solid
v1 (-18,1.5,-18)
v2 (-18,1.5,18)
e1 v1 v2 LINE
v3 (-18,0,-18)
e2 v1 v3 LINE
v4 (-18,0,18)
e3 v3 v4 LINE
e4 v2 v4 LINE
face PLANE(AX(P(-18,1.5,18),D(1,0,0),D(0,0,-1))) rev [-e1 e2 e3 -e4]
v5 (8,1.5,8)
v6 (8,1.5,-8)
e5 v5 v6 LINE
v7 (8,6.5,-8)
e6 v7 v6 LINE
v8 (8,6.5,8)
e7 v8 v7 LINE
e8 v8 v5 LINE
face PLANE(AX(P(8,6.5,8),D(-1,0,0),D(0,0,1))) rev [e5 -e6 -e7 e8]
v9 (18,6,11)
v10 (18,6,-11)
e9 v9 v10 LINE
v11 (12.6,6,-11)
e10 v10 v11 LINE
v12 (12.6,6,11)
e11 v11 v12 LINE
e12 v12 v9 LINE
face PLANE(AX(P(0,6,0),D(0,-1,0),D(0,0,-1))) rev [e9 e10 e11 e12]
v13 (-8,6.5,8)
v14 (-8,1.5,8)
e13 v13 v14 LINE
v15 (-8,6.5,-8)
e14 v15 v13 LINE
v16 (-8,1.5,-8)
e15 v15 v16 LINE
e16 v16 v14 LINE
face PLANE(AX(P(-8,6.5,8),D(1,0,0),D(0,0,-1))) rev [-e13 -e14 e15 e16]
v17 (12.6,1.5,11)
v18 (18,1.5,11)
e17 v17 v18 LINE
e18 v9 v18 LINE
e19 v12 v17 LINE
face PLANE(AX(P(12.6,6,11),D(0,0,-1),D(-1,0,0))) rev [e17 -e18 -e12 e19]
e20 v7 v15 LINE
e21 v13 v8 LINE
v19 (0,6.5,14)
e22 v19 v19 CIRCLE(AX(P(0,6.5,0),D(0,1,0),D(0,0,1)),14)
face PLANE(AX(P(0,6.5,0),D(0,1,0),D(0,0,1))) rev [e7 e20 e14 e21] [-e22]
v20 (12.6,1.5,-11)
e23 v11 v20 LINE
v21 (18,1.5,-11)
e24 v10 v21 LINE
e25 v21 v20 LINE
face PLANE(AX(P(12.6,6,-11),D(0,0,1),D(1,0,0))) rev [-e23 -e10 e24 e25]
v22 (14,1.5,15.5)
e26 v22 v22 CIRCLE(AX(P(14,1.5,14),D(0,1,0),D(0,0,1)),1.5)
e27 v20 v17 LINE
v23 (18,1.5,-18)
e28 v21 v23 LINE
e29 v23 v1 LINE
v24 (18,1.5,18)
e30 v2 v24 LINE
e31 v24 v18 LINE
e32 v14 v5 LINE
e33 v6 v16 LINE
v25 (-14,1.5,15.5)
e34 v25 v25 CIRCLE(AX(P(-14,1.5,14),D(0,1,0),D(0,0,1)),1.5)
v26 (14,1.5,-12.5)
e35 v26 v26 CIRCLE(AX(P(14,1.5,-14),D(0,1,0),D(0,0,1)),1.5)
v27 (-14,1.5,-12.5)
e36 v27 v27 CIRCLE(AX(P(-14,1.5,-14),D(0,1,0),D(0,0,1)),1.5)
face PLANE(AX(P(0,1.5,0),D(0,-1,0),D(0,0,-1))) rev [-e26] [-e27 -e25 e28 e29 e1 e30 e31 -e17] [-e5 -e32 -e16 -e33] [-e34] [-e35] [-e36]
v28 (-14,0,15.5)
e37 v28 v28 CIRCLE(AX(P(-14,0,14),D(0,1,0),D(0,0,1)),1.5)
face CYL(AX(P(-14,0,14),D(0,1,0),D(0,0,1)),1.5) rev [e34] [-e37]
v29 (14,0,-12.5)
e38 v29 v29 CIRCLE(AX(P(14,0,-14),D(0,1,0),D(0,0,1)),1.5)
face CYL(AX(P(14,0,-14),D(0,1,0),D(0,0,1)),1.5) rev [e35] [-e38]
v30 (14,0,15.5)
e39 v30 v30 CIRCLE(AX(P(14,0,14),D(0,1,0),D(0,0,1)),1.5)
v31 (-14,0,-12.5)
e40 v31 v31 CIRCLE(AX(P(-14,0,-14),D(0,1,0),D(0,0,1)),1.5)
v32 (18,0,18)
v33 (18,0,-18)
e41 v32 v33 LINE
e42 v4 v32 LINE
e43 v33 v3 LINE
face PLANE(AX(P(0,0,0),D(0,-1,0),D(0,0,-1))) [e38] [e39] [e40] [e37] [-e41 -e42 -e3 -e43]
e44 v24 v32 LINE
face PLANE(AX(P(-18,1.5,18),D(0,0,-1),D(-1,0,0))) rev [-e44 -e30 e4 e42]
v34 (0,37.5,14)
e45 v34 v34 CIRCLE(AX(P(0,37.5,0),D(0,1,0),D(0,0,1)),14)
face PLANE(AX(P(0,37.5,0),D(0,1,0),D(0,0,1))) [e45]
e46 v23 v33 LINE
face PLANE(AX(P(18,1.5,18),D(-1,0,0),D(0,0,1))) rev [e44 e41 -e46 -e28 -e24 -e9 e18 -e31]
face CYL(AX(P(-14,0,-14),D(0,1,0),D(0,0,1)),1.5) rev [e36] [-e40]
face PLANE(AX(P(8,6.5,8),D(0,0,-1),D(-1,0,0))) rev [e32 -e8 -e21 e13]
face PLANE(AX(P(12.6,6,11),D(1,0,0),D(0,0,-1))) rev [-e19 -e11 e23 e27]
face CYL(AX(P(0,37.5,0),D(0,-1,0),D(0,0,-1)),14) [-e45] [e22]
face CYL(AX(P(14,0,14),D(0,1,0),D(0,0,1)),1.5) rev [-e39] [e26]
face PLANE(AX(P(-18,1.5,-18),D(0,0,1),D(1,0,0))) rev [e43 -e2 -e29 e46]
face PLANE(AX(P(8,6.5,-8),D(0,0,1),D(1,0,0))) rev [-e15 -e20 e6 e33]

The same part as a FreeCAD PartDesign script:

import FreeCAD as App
import Part
import Sketcher
Q = App.Units.Quantity

doc = App.newDocument("Part")
body = doc.addObject("PartDesign::Body", "Body")

sketch1 = body.newObject("Sketcher::SketchObject", "Sketch")
sketch1.AttachmentSupport = (doc.getObject("XZ_Plane"), [""])
sketch1.MapMode = "FlatFace"
sketch1.addGeometry([
    Part.LineSegment(App.Vector(-18, -18, 0), App.Vector(-18, 18, 0)),
    Part.LineSegment(App.Vector(-18, 18, 0), App.Vector(18, 18, 0)),
    Part.LineSegment(App.Vector(18, 18, 0), App.Vector(18, -18, 0)),
    Part.LineSegment(App.Vector(18, -18, 0), App.Vector(-18, -18, 0)),
], False)
sketch1.addConstraint([
    Sketcher.Constraint("Coincident", 0, 2, 1, 1),
    Sketcher.Constraint("Coincident", 1, 2, 2, 1),
    Sketcher.Constraint("Coincident", 2, 2, 3, 1),
    Sketcher.Constraint("Coincident", 3, 2, 0, 1),
    Sketcher.Constraint("Vertical", 0),
    Sketcher.Constraint("Horizontal", 1),
    Sketcher.Constraint("Vertical", 2),
    Sketcher.Constraint("Horizontal", 3),
    Sketcher.Constraint("Symmetric", 0, 2, 2, 2, -1, 1),
    Sketcher.Constraint("Equal", 3, 0),
    Sketcher.Constraint("DistanceX", 1, 1, 1, 2, Q("36 mm")),
])
pad1 = body.newObject("PartDesign::Pad", "Pad")
pad1.Profile = sketch1
pad1.Length = 1.5
pad1.Reversed = True

sketch2 = body.newObject("Sketcher::SketchObject", "Sketch001")
sketch2.AttachmentSupport = (doc.getObject("XZ_Plane"), [""])
sketch2.MapMode = "FlatFace"
sketch2.AttachmentOffset = App.Placement(App.Vector(0, 0, -1.5), App.Rotation())
sketch2.addGeometry([
    Part.Circle(App.Vector(14, -14, 0), App.Vector(0, 0, 1), 1.5),
    Part.Circle(App.Vector(14, 14, 0), App.Vector(0, 0, 1), 1.5),
    Part.Circle(App.Vector(-14, 14, 0), App.Vector(0, 0, 1), 1.5),
    Part.Circle(App.Vector(-14, -14, 0), App.Vector(0, 0, 1), 1.5),
], False)
sketch2.addConstraint([
    Sketcher.Constraint("Equal", 0, 1),
    Sketcher.Constraint("Equal", 1, 2),
    Sketcher.Constraint("Equal", 2, 3),
    Sketcher.Constraint("Symmetric", 0, 3, 2, 3, -1, 1),
    Sketcher.Constraint("Symmetric", 1, 3, 3, 3, -1, 1),
    Sketcher.Constraint("Symmetric", 1, 3, 2, 3, -2),
    Sketcher.Constraint("Diameter", 0, Q("3 mm")),
    Sketcher.Constraint("DistanceX", -1, 1, 0, 3, Q("14 mm")),
    Sketcher.Constraint("DistanceY", 0, 3, -1, 1, Q("14 mm")),
])
pocket1 = body.newObject("PartDesign::Pocket", "Pocket")
pocket1.Profile = sketch2
pocket1.Type = "ThroughAll"
pocket1.Reversed = True

sketch3 = body.newObject("Sketcher::SketchObject", "Sketch002")
sketch3.AttachmentSupport = (doc.getObject("XZ_Plane"), [""])
sketch3.MapMode = "FlatFace"
sketch3.AttachmentOffset = App.Placement(App.Vector(0, 0, -1.5), App.Rotation())
sketch3.addGeometry([
    Part.LineSegment(App.Vector(12.6, -11, 0), App.Vector(12.6, 11, 0)),
    Part.LineSegment(App.Vector(12.6, 11, 0), App.Vector(18, 11, 0)),
    Part.LineSegment(App.Vector(18, 11, 0), App.Vector(18, -11, 0)),
    Part.LineSegment(App.Vector(18, -11, 0), App.Vector(12.6, -11, 0)),
], False)
sketch3.addConstraint([
    Sketcher.Constraint("Coincident", 0, 2, 1, 1),
    Sketcher.Constraint("Coincident", 1, 2, 2, 1),
    Sketcher.Constraint("Coincident", 2, 2, 3, 1),
    Sketcher.Constraint("Coincident", 3, 2, 0, 1),
    Sketcher.Constraint("Vertical", 0),
    Sketcher.Constraint("Horizontal", 1),
    Sketcher.Constraint("Vertical", 2),
    Sketcher.Constraint("Horizontal", 3),
    Sketcher.Constraint("DistanceY", 0, 1, 0, 2, Q("22 mm")),
    Sketcher.Constraint("DistanceX", 1, 1, 1, 2, Q("5.4 mm")),
    Sketcher.Constraint("DistanceY", -1, 1, 0, 2, Q("11 mm")),
    Sketcher.Constraint("DistanceX", -1, 1, 1, 2, Q("18 mm")),
])
pad2 = body.newObject("PartDesign::Pad", "Pad001")
pad2.Profile = sketch3
pad2.Length = 4.5
pad2.Reversed = True

sketch4 = body.newObject("Sketcher::SketchObject", "Sketch003")
sketch4.AttachmentSupport = (doc.getObject("XZ_Plane"), [""])
sketch4.MapMode = "FlatFace"
sketch4.AttachmentOffset = App.Placement(App.Vector(0, 0, -1.5), App.Rotation())
sketch4.addGeometry([
    Part.LineSegment(App.Vector(-8, -8, 0), App.Vector(-8, 8, 0)),
    Part.LineSegment(App.Vector(-8, 8, 0), App.Vector(8, 8, 0)),
    Part.LineSegment(App.Vector(8, 8, 0), App.Vector(8, -8, 0)),
    Part.LineSegment(App.Vector(8, -8, 0), App.Vector(-8, -8, 0)),
], False)
sketch4.addConstraint([
    Sketcher.Constraint("Coincident", 0, 2, 1, 1),
    Sketcher.Constraint("Coincident", 1, 2, 2, 1),
    Sketcher.Constraint("Coincident", 2, 2, 3, 1),
    Sketcher.Constraint("Coincident", 3, 2, 0, 1),
    Sketcher.Constraint("Vertical", 0),
    Sketcher.Constraint("Horizontal", 1),
    Sketcher.Constraint("Vertical", 2),
    Sketcher.Constraint("Horizontal", 3),
    Sketcher.Constraint("Symmetric", 0, 2, 2, 2, -1, 1),
    Sketcher.Constraint("Equal", 3, 0),
    Sketcher.Constraint("DistanceX", 1, 1, 1, 2, Q("16 mm")),
])
pad3 = body.newObject("PartDesign::Pad", "Pad002")
pad3.Profile = sketch4
pad3.Length = 5
pad3.Reversed = True

sketch5 = body.newObject("Sketcher::SketchObject", "Sketch004")
sketch5.AttachmentSupport = (doc.getObject("XZ_Plane"), [""])
sketch5.MapMode = "FlatFace"
sketch5.AttachmentOffset = App.Placement(App.Vector(0, 0, -6.5), App.Rotation())
sketch5.addGeometry(Part.Circle(App.Vector(0, 0, 0), App.Vector(0, 0, 1), 14), False)
sketch5.addConstraint([
    Sketcher.Constraint("Coincident", 0, 3, -1, 1),
    Sketcher.Constraint("Diameter", 0, Q("28 mm")),
])
pad4 = body.newObject("PartDesign::Pad", "Pad003")
pad4.Profile = sketch5
pad4.Length = 31
pad4.Reversed = True

doc.recompute()
